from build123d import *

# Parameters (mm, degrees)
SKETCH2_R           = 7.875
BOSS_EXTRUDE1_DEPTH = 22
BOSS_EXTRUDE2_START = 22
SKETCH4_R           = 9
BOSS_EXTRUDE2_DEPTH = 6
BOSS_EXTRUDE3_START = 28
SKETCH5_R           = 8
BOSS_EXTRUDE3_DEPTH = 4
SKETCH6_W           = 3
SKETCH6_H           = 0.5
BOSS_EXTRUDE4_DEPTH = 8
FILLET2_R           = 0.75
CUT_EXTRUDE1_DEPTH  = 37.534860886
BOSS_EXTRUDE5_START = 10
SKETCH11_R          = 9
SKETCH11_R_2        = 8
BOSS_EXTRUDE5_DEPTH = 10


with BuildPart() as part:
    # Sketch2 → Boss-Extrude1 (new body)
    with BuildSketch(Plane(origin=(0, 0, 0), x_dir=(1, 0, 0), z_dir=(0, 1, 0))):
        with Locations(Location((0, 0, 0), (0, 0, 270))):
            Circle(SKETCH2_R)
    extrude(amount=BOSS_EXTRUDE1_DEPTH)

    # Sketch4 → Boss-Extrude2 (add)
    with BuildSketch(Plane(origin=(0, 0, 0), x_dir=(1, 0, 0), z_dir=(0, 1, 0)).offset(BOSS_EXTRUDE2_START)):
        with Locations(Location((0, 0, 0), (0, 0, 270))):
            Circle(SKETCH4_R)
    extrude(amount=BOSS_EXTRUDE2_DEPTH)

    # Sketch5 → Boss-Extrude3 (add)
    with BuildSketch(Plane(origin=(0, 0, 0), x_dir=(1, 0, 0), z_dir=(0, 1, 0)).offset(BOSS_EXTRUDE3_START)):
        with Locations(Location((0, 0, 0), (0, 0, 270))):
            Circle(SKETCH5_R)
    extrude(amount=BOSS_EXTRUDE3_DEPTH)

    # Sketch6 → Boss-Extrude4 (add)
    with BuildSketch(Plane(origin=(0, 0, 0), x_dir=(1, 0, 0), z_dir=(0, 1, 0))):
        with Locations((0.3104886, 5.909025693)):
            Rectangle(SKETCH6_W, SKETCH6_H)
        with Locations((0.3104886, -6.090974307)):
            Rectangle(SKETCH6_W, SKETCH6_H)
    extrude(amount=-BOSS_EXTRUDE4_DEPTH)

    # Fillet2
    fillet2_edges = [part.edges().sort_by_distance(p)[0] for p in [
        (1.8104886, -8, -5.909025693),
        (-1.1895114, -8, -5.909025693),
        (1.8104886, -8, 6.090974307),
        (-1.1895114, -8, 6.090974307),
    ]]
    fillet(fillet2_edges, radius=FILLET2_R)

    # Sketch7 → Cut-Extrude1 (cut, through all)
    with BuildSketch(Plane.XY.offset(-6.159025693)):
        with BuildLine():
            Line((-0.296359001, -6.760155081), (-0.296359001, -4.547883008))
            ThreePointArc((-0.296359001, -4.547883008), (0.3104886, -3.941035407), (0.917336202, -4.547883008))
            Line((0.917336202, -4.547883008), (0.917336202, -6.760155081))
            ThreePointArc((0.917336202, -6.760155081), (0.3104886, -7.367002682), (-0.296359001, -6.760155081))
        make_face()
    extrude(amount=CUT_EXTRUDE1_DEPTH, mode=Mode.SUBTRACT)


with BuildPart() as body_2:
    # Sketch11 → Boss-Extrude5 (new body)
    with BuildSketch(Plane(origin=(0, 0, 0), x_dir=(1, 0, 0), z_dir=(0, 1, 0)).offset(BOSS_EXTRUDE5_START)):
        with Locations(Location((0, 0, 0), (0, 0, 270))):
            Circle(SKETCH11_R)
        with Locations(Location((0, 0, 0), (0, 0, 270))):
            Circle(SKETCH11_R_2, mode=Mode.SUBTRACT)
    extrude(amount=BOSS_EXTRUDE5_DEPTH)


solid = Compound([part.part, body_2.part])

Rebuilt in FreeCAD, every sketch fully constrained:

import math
import FreeCAD as App
import Part
import Sketcher

V = App.Vector


def edges_at(feature, points):
    """Names of the edges that pass closest to the given points."""
    edges = feature.Shape.Edges
    near = lambda p: min(range(len(edges)), key=lambda i: edges[i].distToShape(Part.Vertex(*p))[0])
    return sorted({f"Edge{near(p) + 1}" for p in points})

doc = App.newDocument("Part")
body = doc.addObject("PartDesign::Body", "Body")

# Sketch on XZ plane
sketch1 = doc.addObject("Sketcher::SketchObject", "Sketch")
body.addObject(sketch1)
sketch1.AttachmentSupport = (doc.XZ_Plane, [""])
sketch1.MapMode = "FlatFace"
sketch1.addGeometry(Part.Circle(V(0, 0, 0), V(0, 0, 1), 8), False)
sketch1.addConstraint([
    Sketcher.Constraint("Coincident", 0, 3, -1, 1),
    Sketcher.Constraint("Diameter", 0, 15.75),
])
pad1 = doc.addObject("PartDesign::Pad", "Pad")
body.addObject(pad1)
pad1.Profile = sketch1
pad1.Length = 22
pad1.Reversed = True

# Sketch on XZ plane
sketch2 = doc.addObject("Sketcher::SketchObject", "Sketch001")
body.addObject(sketch2)
sketch2.AttachmentSupport = (doc.XZ_Plane, [""])
sketch2.MapMode = "FlatFace"
sketch2.AttachmentOffset = App.Placement(V(0, 0, -22), App.Rotation())
sketch2.addGeometry(Part.Circle(V(0, 0, 0), V(0, 0, 1), 9), False)
sketch2.addConstraint([
    Sketcher.Constraint("Coincident", 0, 3, -1, 1),
    Sketcher.Constraint("Diameter", 0, 18.0),
])
pad2 = doc.addObject("PartDesign::Pad", "Pad001")
body.addObject(pad2)
pad2.Profile = sketch2
pad2.Length = 6
pad2.Reversed = True

# Sketch on XZ plane
sketch3 = doc.addObject("Sketcher::SketchObject", "Sketch002")
body.addObject(sketch3)
sketch3.AttachmentSupport = (doc.XZ_Plane, [""])
sketch3.MapMode = "FlatFace"
sketch3.AttachmentOffset = App.Placement(V(0, 0, -28), App.Rotation())
sketch3.addGeometry(Part.Circle(V(0, 0, 0), V(0, 0, 1), 8), False)
sketch3.addConstraint([
    Sketcher.Constraint("Coincident", 0, 3, -1, 1),
    Sketcher.Constraint("Diameter", 0, 16.0),
])
pad3 = doc.addObject("PartDesign::Pad", "Pad002")
body.addObject(pad3)
pad3.Profile = sketch3
pad3.Length = 4
pad3.Reversed = True

# Sketch on XZ plane
sketch4 = doc.addObject("Sketcher::SketchObject", "Sketch003")
body.addObject(sketch4)
sketch4.AttachmentSupport = (doc.XZ_Plane, [""])
sketch4.MapMode = "FlatFace"
sketch4.addGeometry([
    Part.LineSegment(V(-1.2, -6.2, 0), V(-1.2, -5.7, 0)),  # 0
    Part.LineSegment(V(-1.2, -5.7, 0), V(1.8, -5.7, 0)),  # 1
    Part.LineSegment(V(1.8, -5.7, 0), V(1.8, -6.2, 0)),  # 2
    Part.LineSegment(V(1.8, -6.2, 0), V(-1.2, -6.2, 0)),  # 3
    Part.LineSegment(V(-1.2, 5.8, 0), V(-1.2, 6.3, 0)),  # 4
    Part.LineSegment(V(-1.2, 6.3, 0), V(1.8, 6.3, 0)),  # 5
    Part.LineSegment(V(1.8, 6.3, 0), V(1.8, 5.8, 0)),  # 6
    Part.LineSegment(V(1.8, 5.8, 0), V(-1.2, 5.8, 0)),  # 7
], False)
sketch4.addConstraint([
    Sketcher.Constraint("Coincident", 0, 2, 1, 1),
    Sketcher.Constraint("Coincident", 1, 2, 2, 1),
    Sketcher.Constraint("Coincident", 2, 2, 3, 1),
    Sketcher.Constraint("Coincident", 3, 2, 0, 1),
    Sketcher.Constraint("Coincident", 4, 2, 5, 1),
    Sketcher.Constraint("Coincident", 5, 2, 6, 1),
    Sketcher.Constraint("Coincident", 6, 2, 7, 1),
    Sketcher.Constraint("Coincident", 7, 2, 4, 1),
    Sketcher.Constraint("Vertical", 0),
    Sketcher.Constraint("Horizontal", 1),
    Sketcher.Constraint("Vertical", 2),
    Sketcher.Constraint("Horizontal", 3),
    Sketcher.Constraint("Vertical", 4),
    Sketcher.Constraint("Horizontal", 5),
    Sketcher.Constraint("Vertical", 6),
    Sketcher.Constraint("Horizontal", 7),
    Sketcher.Constraint("Vertical", 3, 2, 4, 2),
    Sketcher.Constraint("Vertical", 2, 2, 5, 2),
    Sketcher.Constraint("Equal", 2, 4),
    Sketcher.Constraint("DistanceX", 1, 1, 1, 2, 3.0),
    Sketcher.Constraint("DistanceY", 0, 1, 0, 2, 0.5),
    Sketcher.Constraint("DistanceY", 0, 2, 4, 2, 12.0),
    Sketcher.Constraint("DistanceX", 0, 2, -1, 1, 1.189511),
    Sketcher.Constraint("DistanceY", 0, 2, -1, 1, 5.659026),
])
pad4 = doc.addObject("PartDesign::Pad", "Pad003")
body.addObject(pad4)
pad4.Profile = sketch4
pad4.Length = 8
doc.recompute()

fillet = doc.addObject("PartDesign::Fillet", "Fillet")
body.addObject(fillet)
fillet.Base = (pad4, edges_at(pad4, [
    (1.81, -8, -5.909),
    (-1.19, -8, -5.909),
    (1.81, -8, 6.091),
    (-1.19, -8, 6.091),
]))
fillet.Radius = 0.75

# Sketch on XY plane
sketch5 = doc.addObject("Sketcher::SketchObject", "Sketch004")
body.addObject(sketch5)
sketch5.AttachmentSupport = (doc.XY_Plane, [""])
sketch5.MapMode = "FlatFace"
sketch5.AttachmentOffset = App.Placement(V(0, 0, -6.159026), App.Rotation())
sketch5.addGeometry([
    Part.LineSegment(V(-0.3, -4.5, 0), V(-0.3, -6.8, 0)),
    Part.ArcOfCircle(Part.Circle(V(0.3, -6.8, 0), V(0, 0, 1), 0.6), math.radians(-180), math.radians(0)),
    Part.LineSegment(V(0.9, -6.8, 0), V(0.9, -4.5, 0)),
    Part.ArcOfCircle(Part.Circle(V(0.3, -4.5, 0), V(0, 0, 1), 0.6), math.radians(0), math.radians(180)),
], False)
sketch5.addConstraint([
    Sketcher.Constraint("Tangent", 0, 2, 1, 1),
    Sketcher.Constraint("Tangent", 1, 2, 2, 1),
    Sketcher.Constraint("Tangent", 2, 2, 3, 1),
    Sketcher.Constraint("Tangent", 3, 2, 0, 1),
    Sketcher.Constraint("Vertical", 0),
    Sketcher.Constraint("Vertical", 2),
    Sketcher.Constraint("Radius", 1, 0.606848),
    Sketcher.Constraint("DistanceY", 0, 2, 0, 1, 2.212272),
    Sketcher.Constraint("DistanceX", -1, 1, 1, 3, 0.310489),
    Sketcher.Constraint("DistanceY", 1, 3, -1, 1, 6.760155),
])
pocket1 = doc.addObject("PartDesign::Pocket", "Pocket")
body.addObject(pocket1)
pocket1.Profile = sketch5
pocket1.Type = "ThroughAll"
pocket1.Reversed = True
body2 = doc.addObject("PartDesign::Body", "Body001")

# Sketch on XZ plane
sketch6 = doc.addObject("Sketcher::SketchObject", "Sketch005")
body2.addObject(sketch6)
sketch6.AttachmentSupport = (doc.getObject("XZ_Plane001"), [""])
sketch6.MapMode = "FlatFace"
sketch6.AttachmentOffset = App.Placement(V(0, 0, -10), App.Rotation())
sketch6.addGeometry([
    Part.Circle(V(0, 0, 0), V(0, 0, 1), 9),
    Part.Circle(V(0, 0, 0), V(0, 0, 1), 8),
], False)
sketch6.addConstraint([
    Sketcher.Constraint("Coincident", 0, 3, -1, 1),
    Sketcher.Constraint("Coincident", 1, 3, -1, 1),
    Sketcher.Constraint("Diameter", 0, 18.0),
    Sketcher.Constraint("Diameter", 1, 16.0),
])
pad5 = doc.addObject("PartDesign::Pad", "Pad004")
body2.addObject(pad5)
pad5.Profile = sketch6
pad5.Length = 10
pad5.Reversed = True

doc.recompute()
